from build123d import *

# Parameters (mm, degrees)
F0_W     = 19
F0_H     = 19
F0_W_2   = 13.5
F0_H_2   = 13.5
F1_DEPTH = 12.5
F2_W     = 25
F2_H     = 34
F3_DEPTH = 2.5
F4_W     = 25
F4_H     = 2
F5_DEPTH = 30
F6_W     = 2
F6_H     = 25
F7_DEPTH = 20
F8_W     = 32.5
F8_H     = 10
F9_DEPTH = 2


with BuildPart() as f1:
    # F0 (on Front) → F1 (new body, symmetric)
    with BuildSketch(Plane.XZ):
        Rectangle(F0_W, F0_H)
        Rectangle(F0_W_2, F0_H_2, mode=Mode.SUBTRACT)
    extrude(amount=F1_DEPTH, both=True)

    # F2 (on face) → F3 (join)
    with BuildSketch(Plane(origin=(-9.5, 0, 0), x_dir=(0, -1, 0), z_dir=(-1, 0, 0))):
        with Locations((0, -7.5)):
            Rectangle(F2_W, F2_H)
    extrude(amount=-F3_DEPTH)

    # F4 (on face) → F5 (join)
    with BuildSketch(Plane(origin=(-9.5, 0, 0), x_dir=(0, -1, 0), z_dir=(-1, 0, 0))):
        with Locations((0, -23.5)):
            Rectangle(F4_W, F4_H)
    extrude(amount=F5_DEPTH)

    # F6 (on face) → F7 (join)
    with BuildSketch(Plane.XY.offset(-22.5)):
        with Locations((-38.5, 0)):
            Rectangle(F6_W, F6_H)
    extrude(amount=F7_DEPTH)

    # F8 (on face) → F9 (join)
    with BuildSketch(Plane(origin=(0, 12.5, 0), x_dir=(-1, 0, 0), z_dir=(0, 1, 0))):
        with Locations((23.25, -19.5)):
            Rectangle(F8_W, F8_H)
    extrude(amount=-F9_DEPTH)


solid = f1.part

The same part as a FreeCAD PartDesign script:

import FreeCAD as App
import Part
import Sketcher
from FreeCAD import Vector
Q = App.Units.Quantity

doc = App.newDocument("Part")
body = doc.addObject("PartDesign::Body", "Body")

# Sketch on XZ plane
sketch1 = body.newObject("Sketcher::SketchObject", "Sketch")
sketch1.AttachmentSupport = (doc.getObject("XZ_Plane"), [""])
sketch1.MapMode = "FlatFace"
sketch1.addGeometry(Part.LineSegment(Vector(-10, 10, 0), Vector(-10, -10, 0)), False)
sketch1.addGeometry(Part.LineSegment(Vector(-10, -10, 0), Vector(10, -10, 0)), False)
sketch1.addGeometry(Part.LineSegment(Vector(10, -10, 0), Vector(10, 10, 0)), False)
sketch1.addGeometry(Part.LineSegment(Vector(10, 10, 0), Vector(-10, 10, 0)), False)
sketch1.addGeometry(Part.LineSegment(Vector(7, -7, 0), Vector(-7, -7, 0)), False)
sketch1.addGeometry(Part.LineSegment(Vector(-7, -7, 0), Vector(-7, 7, 0)), False)
sketch1.addGeometry(Part.LineSegment(Vector(-7, 7, 0), Vector(7, 7, 0)), False)
sketch1.addGeometry(Part.LineSegment(Vector(7, 7, 0), Vector(7, -7, 0)), False)
sketch1.addConstraint(Sketcher.Constraint("Coincident", 0, 2, 1, 1))
sketch1.addConstraint(Sketcher.Constraint("Coincident", 1, 2, 2, 1))
sketch1.addConstraint(Sketcher.Constraint("Coincident", 2, 2, 3, 1))
sketch1.addConstraint(Sketcher.Constraint("Coincident", 3, 2, 0, 1))
sketch1.addConstraint(Sketcher.Constraint("Coincident", 4, 2, 5, 1))
sketch1.addConstraint(Sketcher.Constraint("Coincident", 5, 2, 6, 1))
sketch1.addConstraint(Sketcher.Constraint("Coincident", 6, 2, 7, 1))
sketch1.addConstraint(Sketcher.Constraint("Coincident", 7, 2, 4, 1))
sketch1.addConstraint(Sketcher.Constraint("Vertical", 0))
sketch1.addConstraint(Sketcher.Constraint("Horizontal", 1))
sketch1.addConstraint(Sketcher.Constraint("Vertical", 2))
sketch1.addConstraint(Sketcher.Constraint("Horizontal", 3))
sketch1.addConstraint(Sketcher.Constraint("Horizontal", 4))
sketch1.addConstraint(Sketcher.Constraint("Vertical", 5))
sketch1.addConstraint(Sketcher.Constraint("Horizontal", 6))
sketch1.addConstraint(Sketcher.Constraint("Vertical", 7))
sketch1.addConstraint(Sketcher.Constraint("Symmetric", 0, 2, 2, 2, -1, 1))
sketch1.addConstraint(Sketcher.Constraint("Symmetric", 4, 2, 6, 2, -1, 1))
sketch1.addConstraint(Sketcher.Constraint("Equal", 3, 0))
sketch1.addConstraint(Sketcher.Constraint("Equal", 6, 5))
sketch1.addConstraint(Sketcher.Constraint("DistanceX", 1, 1, 1, 2, Q("19 mm")))
sketch1.addConstraint(Sketcher.Constraint("DistanceX", 4, 2, 4, 1, Q("13.5 mm")))
pad1 = body.newObject("PartDesign::Pad", "Pad")
pad1.Profile = sketch1
pad1.Length = 25
pad1.Midplane = True

# Sketch on YZ plane
sketch2 = body.newObject("Sketcher::SketchObject", "Sketch001")
sketch2.AttachmentSupport = (doc.getObject("YZ_Plane"), [""])
sketch2.MapMode = "FlatFace"
sketch2.AttachmentOffset = App.Placement(Vector(0, 0, -9.5), App.Rotation())
sketch2.addGeometry(Part.LineSegment(Vector(12, 10, 0), Vector(12, -24, 0)), False)
sketch2.addGeometry(Part.LineSegment(Vector(12, -24, 0), Vector(-12, -24, 0)), False)
sketch2.addGeometry(Part.LineSegment(Vector(-12, -24, 0), Vector(-12, 10, 0)), False)
sketch2.addGeometry(Part.LineSegment(Vector(-12, 10, 0), Vector(12, 10, 0)), False)
sketch2.addConstraint(Sketcher.Constraint("Coincident", 0, 2, 1, 1))
sketch2.addConstraint(Sketcher.Constraint("Coincident", 1, 2, 2, 1))
sketch2.addConstraint(Sketcher.Constraint("Coincident", 2, 2, 3, 1))
sketch2.addConstraint(Sketcher.Constraint("Coincident", 3, 2, 0, 1))
sketch2.addConstraint(Sketcher.Constraint("Vertical", 0))
sketch2.addConstraint(Sketcher.Constraint("Horizontal", 1))
sketch2.addConstraint(Sketcher.Constraint("Vertical", 2))
sketch2.addConstraint(Sketcher.Constraint("Horizontal", 3))
sketch2.addConstraint(Sketcher.Constraint("DistanceX", 1, 2, 1, 1, Q("25 mm")))
sketch2.addConstraint(Sketcher.Constraint("DistanceY", 0, 2, 0, 1, Q("34 mm")))
sketch2.addConstraint(Sketcher.Constraint("DistanceX", -1, 1, 0, 2, Q("12.5 mm")))
sketch2.addConstraint(Sketcher.Constraint("DistanceY", 0, 2, -1, 1, Q("24.5 mm")))
pad2 = body.newObject("PartDesign::Pad", "Pad001")
pad2.Profile = sketch2
pad2.Length = 2.5

# Sketch on YZ plane
sketch3 = body.newObject("Sketcher::SketchObject", "Sketch002")
sketch3.AttachmentSupport = (doc.getObject("YZ_Plane"), [""])
sketch3.MapMode = "FlatFace"
sketch3.AttachmentOffset = App.Placement(Vector(0, 0, -9.5), App.Rotation())
sketch3.addGeometry(Part.LineSegment(Vector(12.5, -22.5, 0), Vector(12.5, -24.5, 0)), False)
sketch3.addGeometry(Part.LineSegment(Vector(12.5, -24.5, 0), Vector(-12.5, -24.5, 0)), False)
sketch3.addGeometry(Part.LineSegment(Vector(-12.5, -24.5, 0), Vector(-12.5, -22.5, 0)), False)
sketch3.addGeometry(Part.LineSegment(Vector(-12.5, -22.5, 0), Vector(12.5, -22.5, 0)), False)
sketch3.addConstraint(Sketcher.Constraint("Coincident", 0, 2, 1, 1))
sketch3.addConstraint(Sketcher.Constraint("Coincident", 1, 2, 2, 1))
sketch3.addConstraint(Sketcher.Constraint("Coincident", 2, 2, 3, 1))
sketch3.addConstraint(Sketcher.Constraint("Coincident", 3, 2, 0, 1))
sketch3.addConstraint(Sketcher.Constraint("Vertical", 0))
sketch3.addConstraint(Sketcher.Constraint("Horizontal", 1))
sketch3.addConstraint(Sketcher.Constraint("Vertical", 2))
sketch3.addConstraint(Sketcher.Constraint("Horizontal", 3))
sketch3.addConstraint(Sketcher.Constraint("DistanceX", 1, 2, 1, 1, Q("25 mm")))
sketch3.addConstraint(Sketcher.Constraint("DistanceY", 0, 2, 0, 1, Q("2 mm")))
sketch3.addConstraint(Sketcher.Constraint("DistanceX", -1, 1, 0, 2, Q("12.5 mm")))
sketch3.addConstraint(Sketcher.Constraint("DistanceY", 0, 2, -1, 1, Q("24.5 mm")))
pad3 = body.newObject("PartDesign::Pad", "Pad002")
pad3.Profile = sketch3
pad3.Length = 30
pad3.Reversed = True

# Sketch on XY plane
sketch4 = body.newObject("Sketcher::SketchObject", "Sketch003")
sketch4.AttachmentSupport = (doc.getObject("XY_Plane"), [""])
sketch4.MapMode = "FlatFace"
sketch4.AttachmentOffset = App.Placement(Vector(0, 0, -22.5), App.Rotation())
sketch4.addGeometry(Part.LineSegment(Vector(-39.5, 12.5, 0), Vector(-39.5, -12.5, 0)), False)
sketch4.addGeometry(Part.LineSegment(Vector(-39.5, -12.5, 0), Vector(-37.5, -12.5, 0)), False)
sketch4.addGeometry(Part.LineSegment(Vector(-37.5, -12.5, 0), Vector(-37.5, 12.5, 0)), False)
sketch4.addGeometry(Part.LineSegment(Vector(-37.5, 12.5, 0), Vector(-39.5, 12.5, 0)), False)
sketch4.addConstraint(Sketcher.Constraint("Coincident", 0, 2, 1, 1))
sketch4.addConstraint(Sketcher.Constraint("Coincident", 1, 2, 2, 1))
sketch4.addConstraint(Sketcher.Constraint("Coincident", 2, 2, 3, 1))
sketch4.addConstraint(Sketcher.Constraint("Coincident", 3, 2, 0, 1))
sketch4.addConstraint(Sketcher.Constraint("Vertical", 0))
sketch4.addConstraint(Sketcher.Constraint("Horizontal", 1))
sketch4.addConstraint(Sketcher.Constraint("Vertical", 2))
sketch4.addConstraint(Sketcher.Constraint("Horizontal", 3))
sketch4.addConstraint(Sketcher.Constraint("DistanceX", 1, 1, 1, 2, Q("2 mm")))
sketch4.addConstraint(Sketcher.Constraint("DistanceY", 0, 2, 0, 1, Q("25 mm")))
sketch4.addConstraint(Sketcher.Constraint("DistanceX", 0, 2, -1, 1, Q("39.5 mm")))
sketch4.addConstraint(Sketcher.Constraint("DistanceY", 0, 2, -1, 1, Q("12.5 mm")))
pad4 = body.newObject("PartDesign::Pad", "Pad003")
pad4.Profile = sketch4
pad4.Length = 20

# Sketch on XZ plane
sketch5 = body.newObject("Sketcher::SketchObject", "Sketch004")
sketch5.AttachmentSupport = (doc.getObject("XZ_Plane"), [""])
sketch5.MapMode = "FlatFace"
sketch5.AttachmentOffset = App.Placement(Vector(0, 0, -12.5), App.Rotation())
sketch5.addGeometry(Part.LineSegment(Vector(-7, -14, 0), Vector(-7, -24, 0)), False)
sketch5.addGeometry(Part.LineSegment(Vector(-7, -24, 0), Vector(-40, -24, 0)), False)
sketch5.addGeometry(Part.LineSegment(Vector(-40, -24, 0), Vector(-40, -14, 0)), False)
sketch5.addGeometry(Part.LineSegment(Vector(-40, -14, 0), Vector(-7, -14, 0)), False)
sketch5.addConstraint(Sketcher.Constraint("Coincident", 0, 2, 1, 1))
sketch5.addConstraint(Sketcher.Constraint("Coincident", 1, 2, 2, 1))
sketch5.addConstraint(Sketcher.Constraint("Coincident", 2, 2, 3, 1))
sketch5.addConstraint(Sketcher.Constraint("Coincident", 3, 2, 0, 1))
sketch5.addConstraint(Sketcher.Constraint("Vertical", 0))
sketch5.addConstraint(Sketcher.Constraint("Horizontal", 1))
sketch5.addConstraint(Sketcher.Constraint("Vertical", 2))
sketch5.addConstraint(Sketcher.Constraint("Horizontal", 3))
sketch5.addConstraint(Sketcher.Constraint("DistanceY", 0, 2, 0, 1, Q("10 mm")))
sketch5.addConstraint(Sketcher.Constraint("DistanceX", 1, 2, 1, 1, Q("32.5 mm")))
sketch5.addConstraint(Sketcher.Constraint("DistanceX", 0, 2, -1, 1, Q("7 mm")))
sketch5.addConstraint(Sketcher.Constraint("DistanceY", 0, 2, -1, 1, Q("24.5 mm")))
pad5 = body.newObject("PartDesign::Pad", "Pad004")
pad5.Profile = sketch5
pad5.Length = 2

doc.recompute()
